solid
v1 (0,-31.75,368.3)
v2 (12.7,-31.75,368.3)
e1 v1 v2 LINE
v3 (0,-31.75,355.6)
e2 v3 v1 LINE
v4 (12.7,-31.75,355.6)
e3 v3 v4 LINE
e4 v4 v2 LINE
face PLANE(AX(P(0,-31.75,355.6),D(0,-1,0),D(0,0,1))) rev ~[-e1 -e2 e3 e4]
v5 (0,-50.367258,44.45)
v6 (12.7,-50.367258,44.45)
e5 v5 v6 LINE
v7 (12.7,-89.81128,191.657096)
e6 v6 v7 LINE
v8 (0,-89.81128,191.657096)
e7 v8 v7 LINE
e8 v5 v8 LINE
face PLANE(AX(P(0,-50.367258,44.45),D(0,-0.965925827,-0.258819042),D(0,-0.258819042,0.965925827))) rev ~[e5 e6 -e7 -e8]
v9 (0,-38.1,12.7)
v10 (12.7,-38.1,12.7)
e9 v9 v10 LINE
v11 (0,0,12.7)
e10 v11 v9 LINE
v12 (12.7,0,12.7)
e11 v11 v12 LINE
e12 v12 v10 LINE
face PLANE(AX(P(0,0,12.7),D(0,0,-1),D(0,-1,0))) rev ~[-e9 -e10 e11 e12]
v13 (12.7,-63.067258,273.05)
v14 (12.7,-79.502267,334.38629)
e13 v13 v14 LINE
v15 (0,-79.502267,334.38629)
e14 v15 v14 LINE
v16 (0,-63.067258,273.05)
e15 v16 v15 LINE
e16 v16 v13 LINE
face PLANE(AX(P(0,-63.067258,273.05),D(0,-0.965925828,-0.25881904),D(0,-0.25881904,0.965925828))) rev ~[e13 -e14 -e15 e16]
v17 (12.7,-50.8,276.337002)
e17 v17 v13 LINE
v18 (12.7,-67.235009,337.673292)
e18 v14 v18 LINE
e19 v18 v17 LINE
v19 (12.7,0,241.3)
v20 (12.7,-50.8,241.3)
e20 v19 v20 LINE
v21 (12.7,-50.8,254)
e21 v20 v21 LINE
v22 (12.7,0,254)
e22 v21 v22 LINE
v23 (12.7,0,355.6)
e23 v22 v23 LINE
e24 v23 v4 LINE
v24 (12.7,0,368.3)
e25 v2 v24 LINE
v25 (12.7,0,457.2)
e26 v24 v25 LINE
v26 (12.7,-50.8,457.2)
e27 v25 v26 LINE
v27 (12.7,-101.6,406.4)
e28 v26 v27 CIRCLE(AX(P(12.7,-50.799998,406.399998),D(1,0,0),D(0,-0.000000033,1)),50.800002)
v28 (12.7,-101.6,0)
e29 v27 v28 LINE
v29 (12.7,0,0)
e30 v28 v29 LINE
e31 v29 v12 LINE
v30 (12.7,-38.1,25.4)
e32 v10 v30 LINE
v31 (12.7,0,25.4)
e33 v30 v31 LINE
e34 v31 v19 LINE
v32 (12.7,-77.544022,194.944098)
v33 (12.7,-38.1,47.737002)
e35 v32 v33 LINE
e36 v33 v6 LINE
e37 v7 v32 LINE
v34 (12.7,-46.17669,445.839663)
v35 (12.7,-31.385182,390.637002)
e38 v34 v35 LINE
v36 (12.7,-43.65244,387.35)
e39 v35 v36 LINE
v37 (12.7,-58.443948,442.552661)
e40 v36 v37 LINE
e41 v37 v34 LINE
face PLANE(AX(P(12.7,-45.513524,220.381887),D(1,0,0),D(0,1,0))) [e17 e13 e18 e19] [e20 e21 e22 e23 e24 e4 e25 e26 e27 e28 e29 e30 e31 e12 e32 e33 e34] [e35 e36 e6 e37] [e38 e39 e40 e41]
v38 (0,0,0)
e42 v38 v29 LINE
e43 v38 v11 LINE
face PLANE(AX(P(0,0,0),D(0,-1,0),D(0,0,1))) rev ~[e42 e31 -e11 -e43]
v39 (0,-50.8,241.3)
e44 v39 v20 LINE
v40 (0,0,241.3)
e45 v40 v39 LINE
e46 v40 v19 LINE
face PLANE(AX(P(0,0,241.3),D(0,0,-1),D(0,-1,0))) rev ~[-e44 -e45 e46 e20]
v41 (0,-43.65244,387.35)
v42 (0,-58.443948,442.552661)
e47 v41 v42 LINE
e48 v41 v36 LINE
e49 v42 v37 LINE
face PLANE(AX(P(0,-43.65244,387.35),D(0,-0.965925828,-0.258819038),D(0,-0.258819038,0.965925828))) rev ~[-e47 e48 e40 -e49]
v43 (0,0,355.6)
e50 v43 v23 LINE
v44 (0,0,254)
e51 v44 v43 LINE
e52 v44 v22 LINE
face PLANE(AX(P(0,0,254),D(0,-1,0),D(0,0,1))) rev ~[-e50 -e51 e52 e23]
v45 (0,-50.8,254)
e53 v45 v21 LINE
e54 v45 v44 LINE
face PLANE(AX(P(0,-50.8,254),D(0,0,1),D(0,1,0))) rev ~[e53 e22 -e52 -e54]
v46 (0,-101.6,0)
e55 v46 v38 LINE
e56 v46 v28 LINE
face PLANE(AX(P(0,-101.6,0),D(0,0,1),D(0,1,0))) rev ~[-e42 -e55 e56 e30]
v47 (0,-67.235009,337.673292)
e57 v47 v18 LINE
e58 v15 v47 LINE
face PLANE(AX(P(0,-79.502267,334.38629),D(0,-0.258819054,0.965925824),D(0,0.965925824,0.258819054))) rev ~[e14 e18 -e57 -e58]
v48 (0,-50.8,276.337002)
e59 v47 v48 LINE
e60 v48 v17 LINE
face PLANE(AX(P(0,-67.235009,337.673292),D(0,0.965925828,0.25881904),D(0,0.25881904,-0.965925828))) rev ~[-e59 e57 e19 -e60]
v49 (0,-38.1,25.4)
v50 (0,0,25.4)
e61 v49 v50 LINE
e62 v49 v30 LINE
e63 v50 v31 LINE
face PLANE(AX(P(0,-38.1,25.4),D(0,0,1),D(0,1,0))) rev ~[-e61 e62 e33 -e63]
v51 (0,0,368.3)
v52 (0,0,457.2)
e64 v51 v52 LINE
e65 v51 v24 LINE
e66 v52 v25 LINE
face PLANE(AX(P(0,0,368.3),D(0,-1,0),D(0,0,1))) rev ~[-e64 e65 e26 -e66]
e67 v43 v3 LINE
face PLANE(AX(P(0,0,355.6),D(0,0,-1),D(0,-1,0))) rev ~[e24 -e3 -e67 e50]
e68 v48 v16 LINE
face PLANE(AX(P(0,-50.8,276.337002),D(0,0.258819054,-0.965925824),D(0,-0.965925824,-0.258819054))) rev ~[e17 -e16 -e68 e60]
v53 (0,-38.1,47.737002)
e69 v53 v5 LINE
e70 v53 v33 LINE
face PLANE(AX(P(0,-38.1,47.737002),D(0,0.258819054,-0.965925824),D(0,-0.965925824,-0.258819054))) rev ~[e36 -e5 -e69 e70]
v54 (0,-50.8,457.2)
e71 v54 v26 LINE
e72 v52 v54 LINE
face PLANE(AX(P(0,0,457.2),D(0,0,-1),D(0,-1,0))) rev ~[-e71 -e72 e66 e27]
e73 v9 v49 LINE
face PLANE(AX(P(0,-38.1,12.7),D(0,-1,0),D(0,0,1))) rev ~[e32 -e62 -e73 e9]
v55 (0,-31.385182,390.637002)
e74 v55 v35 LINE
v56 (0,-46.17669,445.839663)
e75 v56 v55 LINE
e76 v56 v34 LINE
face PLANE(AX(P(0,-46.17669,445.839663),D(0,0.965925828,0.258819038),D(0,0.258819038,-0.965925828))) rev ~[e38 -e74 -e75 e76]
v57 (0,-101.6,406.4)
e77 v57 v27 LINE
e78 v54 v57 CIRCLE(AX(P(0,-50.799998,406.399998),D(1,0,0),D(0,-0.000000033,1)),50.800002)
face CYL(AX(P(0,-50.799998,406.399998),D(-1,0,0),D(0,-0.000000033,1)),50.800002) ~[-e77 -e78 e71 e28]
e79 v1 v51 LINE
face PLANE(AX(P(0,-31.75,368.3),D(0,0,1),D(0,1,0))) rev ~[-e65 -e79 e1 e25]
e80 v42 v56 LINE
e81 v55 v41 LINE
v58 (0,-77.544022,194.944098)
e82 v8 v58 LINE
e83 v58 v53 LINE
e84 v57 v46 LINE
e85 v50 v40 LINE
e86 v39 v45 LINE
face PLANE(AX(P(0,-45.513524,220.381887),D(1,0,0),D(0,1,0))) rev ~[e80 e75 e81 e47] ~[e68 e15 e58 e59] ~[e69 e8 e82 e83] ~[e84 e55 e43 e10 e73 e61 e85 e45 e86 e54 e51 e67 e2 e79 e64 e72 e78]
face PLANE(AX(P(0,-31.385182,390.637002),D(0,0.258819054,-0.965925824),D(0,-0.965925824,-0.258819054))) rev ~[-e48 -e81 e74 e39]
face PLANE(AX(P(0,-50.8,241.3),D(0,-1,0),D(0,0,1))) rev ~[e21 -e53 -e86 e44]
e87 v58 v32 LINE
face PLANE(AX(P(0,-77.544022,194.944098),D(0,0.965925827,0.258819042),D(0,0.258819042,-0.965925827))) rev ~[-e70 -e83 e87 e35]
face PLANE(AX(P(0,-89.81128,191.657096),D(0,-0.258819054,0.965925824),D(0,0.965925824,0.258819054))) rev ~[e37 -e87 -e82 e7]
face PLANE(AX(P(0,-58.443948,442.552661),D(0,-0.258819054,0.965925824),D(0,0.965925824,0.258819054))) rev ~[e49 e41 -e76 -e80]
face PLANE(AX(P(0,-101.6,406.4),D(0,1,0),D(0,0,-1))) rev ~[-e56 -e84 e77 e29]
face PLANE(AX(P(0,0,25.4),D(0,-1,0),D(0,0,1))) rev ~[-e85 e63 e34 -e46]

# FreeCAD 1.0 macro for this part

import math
import FreeCAD as App
import Part
import Sketcher

V = App.Vector
Q = App.Units.Quantity

doc = App.newDocument("Part")
body = doc.addObject("PartDesign::Body", "Body")

# Sketch on YZ plane
sketch1 = body.newObject("Sketcher::SketchObject", "Sketch")
sketch1.AttachmentSupport = (doc.getObject("YZ_Plane"), [""])
sketch1.MapMode = "FlatFace"
sketch1.addGeometry([
    Part.LineSegment(V(-102, 0, 0), V(0, 0, 0)),  # 0
    Part.LineSegment(V(0, 0, 0), V(0, 13, 0)),  # 1
    Part.LineSegment(V(0, 13, 0), V(-38, 13, 0)),  # 2
    Part.LineSegment(V(-38, 13, 0), V(-38, 25, 0)),  # 3
    Part.LineSegment(V(-38, 25, 0), V(0, 25, 0)),  # 4
    Part.LineSegment(V(0, 25, 0), V(0, 241, 0)),  # 5
    Part.LineSegment(V(0, 241, 0), V(-51, 241, 0)),  # 6
    Part.LineSegment(V(-51, 241, 0), V(-51, 254, 0)),  # 7
    Part.LineSegment(V(-51, 254, 0), V(0, 254, 0)),  # 8
    Part.LineSegment(V(0, 254, 0), V(0, 356, 0)),  # 9
    Part.LineSegment(V(0, 356, 0), V(-32, 356, 0)),  # 10
    Part.LineSegment(V(-32, 356, 0), V(-32, 368, 0)),  # 11
    Part.LineSegment(V(-32, 368, 0), V(0, 368, 0)),  # 12
    Part.LineSegment(V(0, 368, 0), V(0, 457, 0)),  # 13
    Part.LineSegment(V(0, 457, 0), V(-51, 457, 0)),  # 14
    Part.ArcOfCircle(Part.Circle(V(-51, 406, 0), V(0, 0, 1), 51), math.radians(90), math.radians(180)),  # 15
    Part.LineSegment(V(-102, 406, 0), V(-102, 0, 0)),  # 16
    Part.LineSegment(V(-90, 192, 0), V(-78, 195, 0)),  # 17
    Part.LineSegment(V(-78, 195, 0), V(-38, 48, 0)),  # 18
    Part.LineSegment(V(-38, 48, 0), V(-50, 44, 0)),  # 19
    Part.LineSegment(V(-50, 44, 0), V(-90, 192, 0)),  # 20
    Part.LineSegment(V(-51, 276, 0), V(-63, 273, 0)),  # 21
    Part.LineSegment(V(-63, 273, 0), V(-80, 334, 0)),  # 22
    Part.LineSegment(V(-80, 334, 0), V(-67, 338, 0)),  # 23
    Part.LineSegment(V(-67, 338, 0), V(-51, 276, 0)),  # 24
    Part.LineSegment(V(-31, 391, 0), V(-44, 387, 0)),  # 25
    Part.LineSegment(V(-44, 387, 0), V(-58, 443, 0)),  # 26
    Part.LineSegment(V(-58, 443, 0), V(-46, 446, 0)),  # 27
    Part.LineSegment(V(-46, 446, 0), V(-31, 391, 0)),  # 28
], False)
sketch1.addConstraint([
    Sketcher.Constraint("Coincident", 0, 2, 1, 1),
    Sketcher.Constraint("Coincident", 1, 2, 2, 1),
    Sketcher.Constraint("Coincident", 2, 2, 3, 1),
    Sketcher.Constraint("Coincident", 3, 2, 4, 1),
    Sketcher.Constraint("Coincident", 4, 2, 5, 1),
    Sketcher.Constraint("Coincident", 5, 2, 6, 1),
    Sketcher.Constraint("Coincident", 6, 2, 7, 1),
    Sketcher.Constraint("Coincident", 7, 2, 8, 1),
    Sketcher.Constraint("Coincident", 8, 2, 9, 1),
    Sketcher.Constraint("Coincident", 9, 2, 10, 1),
    Sketcher.Constraint("Coincident", 10, 2, 11, 1),
    Sketcher.Constraint("Coincident", 11, 2, 12, 1),
    Sketcher.Constraint("Coincident", 12, 2, 13, 1),
    Sketcher.Constraint("Coincident", 13, 2, 14, 1),
    Sketcher.Constraint("Tangent", 14, 2, 15, 1),
    Sketcher.Constraint("Tangent", 15, 2, 16, 1),
    Sketcher.Constraint("Coincident", 16, 2, 0, 1),
    Sketcher.Constraint("Coincident", 17, 2, 18, 1),
    Sketcher.Constraint("Coincident", 18, 2, 19, 1),
    Sketcher.Constraint("Coincident", 19, 2, 20, 1),
    Sketcher.Constraint("Coincident", 20, 2, 17, 1),
    Sketcher.Constraint("Coincident", 21, 2, 22, 1),
    Sketcher.Constraint("Coincident", 22, 2, 23, 1),
    Sketcher.Constraint("Coincident", 23, 2, 24, 1),
    Sketcher.Constraint("Coincident", 24, 2, 21, 1),
    Sketcher.Constraint("Coincident", 25, 2, 26, 1),
    Sketcher.Constraint("Coincident", 26, 2, 27, 1),
    Sketcher.Constraint("Coincident", 27, 2, 28, 1),
    Sketcher.Constraint("Coincident", 28, 2, 25, 1),
    Sketcher.Constraint("Horizontal", 0),
    Sketcher.Constraint("Vertical", 1),
    Sketcher.Constraint("Horizontal", 2),
    Sketcher.Constraint("Vertical", 3),
    Sketcher.Constraint("Horizontal", 4),
    Sketcher.Constraint("Vertical", 5),
    Sketcher.Constraint("Horizontal", 6),
    Sketcher.Constraint("Vertical", 7),
    Sketcher.Constraint("Horizontal", 8),
    Sketcher.Constraint("Vertical", 9),
    Sketcher.Constraint("Horizontal", 10),
    Sketcher.Constraint("Vertical", 11),
    Sketcher.Constraint("Horizontal", 12),
    Sketcher.Constraint("Vertical", 13),
    Sketcher.Constraint("Horizontal", 14),
    Sketcher.Constraint("Vertical", 16),
    Sketcher.Constraint("Coincident", 0, 2, -1, 1),
    Sketcher.Constraint("PointOnObject", 4, 2, -2),
    Sketcher.Constraint("PointOnObject", 8, 2, -2),
    Sketcher.Constraint("PointOnObject", 12, 2, -2),
    Sketcher.Constraint("Perpendicular", 17, 18),
    Sketcher.Constraint("Perpendicular", 18, 19),
    Sketcher.Constraint("Perpendicular", 19, 20),
    Sketcher.Constraint("Perpendicular", 20, 21),
    Sketcher.Constraint("Perpendicular", 21, 22),
    Sketcher.Constraint("Perpendicular", 22, 23),
    Sketcher.Constraint("Perpendicular", 23, 24),
    Sketcher.Constraint("Perpendicular", 24, 25),
    Sketcher.Constraint("Perpendicular", 25, 26),
    Sketcher.Constraint("Perpendicular", 26, 27),
    Sketcher.Constraint("Perpendicular", 27, 28),
    Sketcher.Constraint("Vertical", 15, 3, 6, 2),
    Sketcher.Constraint("Vertical", 3, 2, 18, 2),
    Sketcher.Constraint("Vertical", 14, 2, 24, 2),
    Sketcher.Constraint("Equal", 1, 3),
    Sketcher.Constraint("Equal", 3, 7),
    Sketcher.Constraint("Equal", 0, 9),
    Sketcher.Constraint("Equal", 7, 11),
    Sketcher.Constraint("Equal", 19, 21),
    Sketcher.Constraint("Equal", 23, 25),
    Sketcher.Constraint("Radius", 15, Q("2.0000001 in")),
    Sketcher.Constraint("DistanceX", 0, 1, 0, 2, Q("4 in")),
    Sketcher.Constraint("DistanceY", 16, 2, 16, 1, Q("16 in")),
    Sketcher.Constraint("Distance", 18, Q("6 in")),
    Sketcher.Constraint("DistanceX", 2, 2, 2, 1, Q("1.5 in")),
    Sketcher.Constraint("DistanceY", 1, 1, 1, 2, Q("0.5 in")),
    Sketcher.Constraint("DistanceY", 5, 1, 5, 2, Q("8.5 in")),
    Sketcher.Constraint("Angle", 17, Q("15.000001 deg")),
    Sketcher.Constraint("Distance", 17, Q("0.5 in")),
    Sketcher.Constraint("Distance", 22, Q("2.5 in")),
    Sketcher.Constraint("DistanceX", 10, 2, 10, 1, Q("1.25 in")),
    Sketcher.Constraint("Distance", 26, Q("2.25 in")),
    Sketcher.Constraint("DistanceY", -1, 1, 19, 2, Q("1.75 in")),
    Sketcher.Constraint("DistanceY", -1, 1, 21, 2, Q("10.75 in")),
    Sketcher.Constraint("DistanceY", -1, 1, 25, 2, Q("15.25 in")),
    Sketcher.Constraint("DistanceX", 25, 2, -1, 1, Q("1.7186 in")),
])
pad1 = body.newObject("PartDesign::Pad", "Pad")
pad1.Profile = sketch1
pad1.Length = Q("0.5 in")

doc.recompute()
